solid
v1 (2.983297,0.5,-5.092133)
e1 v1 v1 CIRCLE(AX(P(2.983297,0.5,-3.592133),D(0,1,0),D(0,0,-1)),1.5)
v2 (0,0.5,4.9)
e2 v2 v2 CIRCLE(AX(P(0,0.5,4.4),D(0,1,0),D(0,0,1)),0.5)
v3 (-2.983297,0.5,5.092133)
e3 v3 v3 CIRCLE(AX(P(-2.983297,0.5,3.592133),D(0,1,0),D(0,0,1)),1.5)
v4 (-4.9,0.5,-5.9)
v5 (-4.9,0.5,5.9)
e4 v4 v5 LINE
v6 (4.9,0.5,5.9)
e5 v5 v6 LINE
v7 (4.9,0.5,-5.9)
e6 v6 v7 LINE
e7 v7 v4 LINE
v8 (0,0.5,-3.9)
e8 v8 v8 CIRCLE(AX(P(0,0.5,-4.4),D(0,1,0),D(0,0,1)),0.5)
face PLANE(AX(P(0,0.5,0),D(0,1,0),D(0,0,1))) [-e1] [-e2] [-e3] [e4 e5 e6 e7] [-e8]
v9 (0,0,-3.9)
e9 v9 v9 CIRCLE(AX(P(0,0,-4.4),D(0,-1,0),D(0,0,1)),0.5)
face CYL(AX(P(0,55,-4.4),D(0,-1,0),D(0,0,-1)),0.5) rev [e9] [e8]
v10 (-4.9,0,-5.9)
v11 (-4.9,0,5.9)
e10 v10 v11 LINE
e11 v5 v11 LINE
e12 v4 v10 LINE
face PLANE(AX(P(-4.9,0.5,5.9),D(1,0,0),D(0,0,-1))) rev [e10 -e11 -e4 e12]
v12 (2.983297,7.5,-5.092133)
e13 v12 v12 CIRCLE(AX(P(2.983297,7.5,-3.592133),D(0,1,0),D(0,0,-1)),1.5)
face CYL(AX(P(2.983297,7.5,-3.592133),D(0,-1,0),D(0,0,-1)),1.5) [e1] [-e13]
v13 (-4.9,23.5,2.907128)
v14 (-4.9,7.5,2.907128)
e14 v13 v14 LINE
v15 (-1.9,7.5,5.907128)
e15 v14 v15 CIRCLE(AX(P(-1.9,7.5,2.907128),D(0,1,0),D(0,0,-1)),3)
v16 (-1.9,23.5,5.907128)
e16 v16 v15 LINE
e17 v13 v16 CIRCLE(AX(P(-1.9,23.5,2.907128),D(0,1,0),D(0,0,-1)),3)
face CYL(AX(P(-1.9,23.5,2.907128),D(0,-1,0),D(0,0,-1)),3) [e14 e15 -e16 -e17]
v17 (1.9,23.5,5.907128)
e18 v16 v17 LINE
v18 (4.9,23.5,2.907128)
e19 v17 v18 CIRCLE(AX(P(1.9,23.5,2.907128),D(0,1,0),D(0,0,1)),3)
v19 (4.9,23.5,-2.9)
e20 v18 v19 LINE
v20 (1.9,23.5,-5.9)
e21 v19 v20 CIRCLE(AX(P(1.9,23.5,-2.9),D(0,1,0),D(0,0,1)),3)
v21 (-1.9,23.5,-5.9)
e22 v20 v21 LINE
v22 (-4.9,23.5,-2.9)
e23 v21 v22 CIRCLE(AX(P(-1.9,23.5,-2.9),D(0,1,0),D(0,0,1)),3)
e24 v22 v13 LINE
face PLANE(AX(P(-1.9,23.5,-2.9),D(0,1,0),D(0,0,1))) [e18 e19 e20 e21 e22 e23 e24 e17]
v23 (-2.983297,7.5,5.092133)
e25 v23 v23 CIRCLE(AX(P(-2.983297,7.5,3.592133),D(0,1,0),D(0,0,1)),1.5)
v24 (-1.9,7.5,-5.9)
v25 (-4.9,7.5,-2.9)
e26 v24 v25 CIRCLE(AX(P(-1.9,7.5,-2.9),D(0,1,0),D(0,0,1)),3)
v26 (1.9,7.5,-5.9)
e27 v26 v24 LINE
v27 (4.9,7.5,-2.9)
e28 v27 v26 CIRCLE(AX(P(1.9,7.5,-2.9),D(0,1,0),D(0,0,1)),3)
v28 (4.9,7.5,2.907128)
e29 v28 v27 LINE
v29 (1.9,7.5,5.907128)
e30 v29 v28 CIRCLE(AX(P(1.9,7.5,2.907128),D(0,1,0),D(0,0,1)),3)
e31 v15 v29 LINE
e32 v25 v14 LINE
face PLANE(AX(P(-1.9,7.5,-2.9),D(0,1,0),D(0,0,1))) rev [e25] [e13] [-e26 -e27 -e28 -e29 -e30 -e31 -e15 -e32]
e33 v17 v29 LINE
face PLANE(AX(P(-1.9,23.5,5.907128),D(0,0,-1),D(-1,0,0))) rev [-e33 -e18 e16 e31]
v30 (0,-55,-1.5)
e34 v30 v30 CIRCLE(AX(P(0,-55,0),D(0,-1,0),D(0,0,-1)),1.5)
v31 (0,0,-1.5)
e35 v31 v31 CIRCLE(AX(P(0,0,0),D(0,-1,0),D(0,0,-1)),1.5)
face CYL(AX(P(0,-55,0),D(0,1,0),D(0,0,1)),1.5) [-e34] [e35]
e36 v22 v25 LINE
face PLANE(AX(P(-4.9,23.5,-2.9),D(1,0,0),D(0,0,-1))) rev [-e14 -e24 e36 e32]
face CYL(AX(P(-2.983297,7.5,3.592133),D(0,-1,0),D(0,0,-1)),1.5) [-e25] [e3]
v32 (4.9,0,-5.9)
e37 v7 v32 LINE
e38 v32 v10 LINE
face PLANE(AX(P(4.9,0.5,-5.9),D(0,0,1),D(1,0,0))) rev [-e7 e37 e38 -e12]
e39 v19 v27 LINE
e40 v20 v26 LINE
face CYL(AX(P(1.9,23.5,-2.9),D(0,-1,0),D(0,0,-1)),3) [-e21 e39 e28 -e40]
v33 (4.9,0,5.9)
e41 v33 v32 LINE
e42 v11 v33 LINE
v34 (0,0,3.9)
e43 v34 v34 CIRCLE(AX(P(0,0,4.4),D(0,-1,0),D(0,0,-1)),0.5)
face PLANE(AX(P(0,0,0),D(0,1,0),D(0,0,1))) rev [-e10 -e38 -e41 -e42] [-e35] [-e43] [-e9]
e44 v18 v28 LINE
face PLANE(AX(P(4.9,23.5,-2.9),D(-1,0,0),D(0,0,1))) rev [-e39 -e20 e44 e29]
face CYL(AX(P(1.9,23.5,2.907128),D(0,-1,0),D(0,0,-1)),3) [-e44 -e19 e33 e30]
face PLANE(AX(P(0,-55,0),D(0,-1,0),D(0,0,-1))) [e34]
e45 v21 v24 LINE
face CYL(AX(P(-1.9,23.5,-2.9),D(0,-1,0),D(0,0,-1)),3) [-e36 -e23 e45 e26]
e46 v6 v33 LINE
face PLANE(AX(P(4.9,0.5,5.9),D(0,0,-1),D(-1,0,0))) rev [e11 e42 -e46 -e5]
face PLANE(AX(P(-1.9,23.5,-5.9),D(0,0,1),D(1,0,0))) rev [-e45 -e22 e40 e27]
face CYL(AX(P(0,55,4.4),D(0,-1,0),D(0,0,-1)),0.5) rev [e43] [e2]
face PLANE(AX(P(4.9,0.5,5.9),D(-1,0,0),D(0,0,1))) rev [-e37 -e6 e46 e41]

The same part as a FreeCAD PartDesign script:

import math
import FreeCAD as App
import Part
import Sketcher

V = App.Vector
Q = App.Units.Quantity


def add_polygon(sketch, points):
    """Adds a closed chain of lines whose ends are joined by coincident constraints."""
    first, n = sketch.GeometryCount, len(points)
    for a, b in zip(points, points[1:] + points[:1]):
        sketch.addGeometry(Part.LineSegment(App.Vector(*a, 0), App.Vector(*b, 0)), False)
    for i in range(n):
        sketch.addConstraint(Sketcher.Constraint("Coincident", first + i, 2, first + (i + 1) % n, 1))

doc = App.newDocument("Part")
body = doc.addObject("PartDesign::Body", "Body")

# Sketch on XZ plane
sketch1 = body.newObject("Sketcher::SketchObject", "Sketch")
sketch1.AttachmentSupport = (doc.getObject("XZ_Plane"), [""])
sketch1.MapMode = "FlatFace"
add_polygon(sketch1, [(-5, -6), (-5, 6), (5, 6), (5, -6)])  # lines 0-3
sketch1.addConstraint(Sketcher.Constraint("Vertical", 0))
sketch1.addConstraint(Sketcher.Constraint("Horizontal", 1))
sketch1.addConstraint(Sketcher.Constraint("Vertical", 2))
sketch1.addConstraint(Sketcher.Constraint("Horizontal", 3))
sketch1.addConstraint(Sketcher.Constraint("Symmetric", 0, 2, 2, 2, -1, 1))
sketch1.addConstraint(Sketcher.Constraint("DistanceX", 1, 1, 1, 2, Q("9.8 mm")))
sketch1.addConstraint(Sketcher.Constraint("DistanceY", 0, 1, 0, 2, Q("11.8 mm")))
pad1 = body.newObject("PartDesign::Pad", "Pad")
pad1.Profile = sketch1
pad1.Length = 0.5
pad1.Reversed = True

# Sketch on XZ plane
sketch2 = body.newObject("Sketcher::SketchObject", "Sketch001")
sketch2.AttachmentSupport = (doc.getObject("XZ_Plane"), [""])
sketch2.MapMode = "FlatFace"
sketch2.addGeometry(Part.Circle(V(0, 0, 0), V(0, 0, 1), 1.5), False)
sketch2.addConstraint(Sketcher.Constraint("Coincident", 0, 3, -1, 1))
sketch2.addConstraint(Sketcher.Constraint("Diameter", 0, Q("3 mm")))
pad2 = body.newObject("PartDesign::Pad", "Pad001")
pad2.Profile = sketch2
pad2.Length = 55

# Sketch on XZ plane
sketch3 = body.newObject("Sketcher::SketchObject", "Sketch002")
sketch3.AttachmentSupport = (doc.getObject("XZ_Plane"), [""])
sketch3.MapMode = "FlatFace"
sketch3.addGeometry(Part.Circle(V(0, 4.4, 0), V(0, 0, 1), 0.5), False)
sketch3.addGeometry(Part.Circle(V(0, -4.4, 0), V(0, 0, 1), 0.5), False)
sketch3.addConstraint(Sketcher.Constraint("Equal", 0, 1))
sketch3.addConstraint(Sketcher.Constraint("Symmetric", 0, 3, 1, 3, -1, 1))
sketch3.addConstraint(Sketcher.Constraint("PointOnObject", 0, 3, -2))
sketch3.addConstraint(Sketcher.Constraint("Diameter", 0, Q("1 mm")))
sketch3.addConstraint(Sketcher.Constraint("DistanceY", -1, 1, 0, 3, Q("4.4 mm")))
pocket1 = body.newObject("PartDesign::Pocket", "Pocket")
pocket1.Profile = sketch3
pocket1.Length = 55

# Sketch on XZ plane
sketch4 = body.newObject("Sketcher::SketchObject", "Sketch003")
sketch4.AttachmentSupport = (doc.getObject("XZ_Plane"), [""])
sketch4.MapMode = "FlatFace"
sketch4.AttachmentOffset = App.Placement(V(0, 0, -0.5), App.Rotation())
sketch4.addGeometry(Part.Circle(V(-3, 3.6, 0), V(0, 0, 1), 1.5), False)
sketch4.addGeometry(Part.Circle(V(3, -3.6, 0), V(0, 0, 1), 1.5), False)
sketch4.addConstraint(Sketcher.Constraint("Equal", 0, 1))
sketch4.addConstraint(Sketcher.Constraint("Symmetric", 0, 3, 1, 3, -1, 1))
sketch4.addConstraint(Sketcher.Constraint("Diameter", 0, Q("3 mm")))
sketch4.addConstraint(Sketcher.Constraint("DistanceX", 0, 3, -1, 1, Q("2.983297 mm")))
sketch4.addConstraint(Sketcher.Constraint("DistanceY", -1, 1, 0, 3, Q("3.592133 mm")))
pad3 = body.newObject("PartDesign::Pad", "Pad002")
pad3.Profile = sketch4
pad3.Length = 7
pad3.Reversed = True

# Sketch on XZ plane
sketch5 = body.newObject("Sketcher::SketchObject", "Sketch004")
sketch5.AttachmentSupport = (doc.getObject("XZ_Plane"), [""])
sketch5.MapMode = "FlatFace"
sketch5.AttachmentOffset = App.Placement(V(0, 0, -7.5), App.Rotation())
sketch5.addGeometry(Part.LineSegment(V(1.9, -5.9, 0), V(-1.9, -5.9, 0)), False)
sketch5.addGeometry(Part.ArcOfCircle(Part.Circle(V(-1.9, -2.9, 0), V(0, 0, 1), 3), math.radians(180), math.radians(270)), False)
sketch5.addGeometry(Part.LineSegment(V(-4.9, -2.9, 0), V(-4.9, 2.9, 0)), False)
sketch5.addGeometry(Part.ArcOfCircle(Part.Circle(V(-1.9, 2.9, 0), V(0, 0, 1), 3), math.radians(90), math.radians(180)), False)
sketch5.addGeometry(Part.LineSegment(V(-1.9, 5.9, 0), V(1.9, 5.9, 0)), False)
sketch5.addGeometry(Part.ArcOfCircle(Part.Circle(V(1.9, 2.9, 0), V(0, 0, 1), 3), math.radians(0), math.radians(90)), False)
sketch5.addGeometry(Part.LineSegment(V(4.9, 2.9, 0), V(4.9, -2.9, 0)), False)
sketch5.addGeometry(Part.ArcOfCircle(Part.Circle(V(1.9, -2.9, 0), V(0, 0, 1), 3), math.radians(-90), math.radians(0)), False)
sketch5.addConstraint(Sketcher.Constraint("Tangent", 0, 2, 1, 2))
sketch5.addConstraint(Sketcher.Constraint("Tangent", 1, 1, 2, 1))
sketch5.addConstraint(Sketcher.Constraint("Tangent", 2, 2, 3, 2))
sketch5.addConstraint(Sketcher.Constraint("Tangent", 3, 1, 4, 1))
sketch5.addConstraint(Sketcher.Constraint("Tangent", 4, 2, 5, 2))
sketch5.addConstraint(Sketcher.Constraint("Tangent", 5, 1, 6, 1))
sketch5.addConstraint(Sketcher.Constraint("Tangent", 6, 2, 7, 2))
sketch5.addConstraint(Sketcher.Constraint("Tangent", 7, 1, 0, 1))
sketch5.addConstraint(Sketcher.Constraint("Horizontal", 0))
sketch5.addConstraint(Sketcher.Constraint("Vertical", 2))
sketch5.addConstraint(Sketcher.Constraint("Horizontal", 4))
sketch5.addConstraint(Sketcher.Constraint("Vertical", 6))
sketch5.addConstraint(Sketcher.Constraint("Equal", 1, 3))
sketch5.addConstraint(Sketcher.Constraint("Equal", 3, 5))
sketch5.addConstraint(Sketcher.Constraint("Equal", 5, 7))
sketch5.addConstraint(Sketcher.Constraint("Radius", 1, Q("3 mm")))
sketch5.addConstraint(Sketcher.Constraint("DistanceX", 0, 2, 0, 1, Q("3.8 mm")))
sketch5.addConstraint(Sketcher.Constraint("DistanceX", 1, 3, -1, 1, Q("1.9 mm")))
sketch5.addConstraint(Sketcher.Constraint("DistanceY", 1, 3, -1, 1, Q("2.9 mm")))
sketch5.addConstraint(Sketcher.Constraint("DistanceY", 2, 1, 2, 2, Q("5.807128 mm")))
pad4 = body.newObject("PartDesign::Pad", "Pad003")
pad4.Profile = sketch5
pad4.Length = 16
pad4.Reversed = True

doc.recompute()
